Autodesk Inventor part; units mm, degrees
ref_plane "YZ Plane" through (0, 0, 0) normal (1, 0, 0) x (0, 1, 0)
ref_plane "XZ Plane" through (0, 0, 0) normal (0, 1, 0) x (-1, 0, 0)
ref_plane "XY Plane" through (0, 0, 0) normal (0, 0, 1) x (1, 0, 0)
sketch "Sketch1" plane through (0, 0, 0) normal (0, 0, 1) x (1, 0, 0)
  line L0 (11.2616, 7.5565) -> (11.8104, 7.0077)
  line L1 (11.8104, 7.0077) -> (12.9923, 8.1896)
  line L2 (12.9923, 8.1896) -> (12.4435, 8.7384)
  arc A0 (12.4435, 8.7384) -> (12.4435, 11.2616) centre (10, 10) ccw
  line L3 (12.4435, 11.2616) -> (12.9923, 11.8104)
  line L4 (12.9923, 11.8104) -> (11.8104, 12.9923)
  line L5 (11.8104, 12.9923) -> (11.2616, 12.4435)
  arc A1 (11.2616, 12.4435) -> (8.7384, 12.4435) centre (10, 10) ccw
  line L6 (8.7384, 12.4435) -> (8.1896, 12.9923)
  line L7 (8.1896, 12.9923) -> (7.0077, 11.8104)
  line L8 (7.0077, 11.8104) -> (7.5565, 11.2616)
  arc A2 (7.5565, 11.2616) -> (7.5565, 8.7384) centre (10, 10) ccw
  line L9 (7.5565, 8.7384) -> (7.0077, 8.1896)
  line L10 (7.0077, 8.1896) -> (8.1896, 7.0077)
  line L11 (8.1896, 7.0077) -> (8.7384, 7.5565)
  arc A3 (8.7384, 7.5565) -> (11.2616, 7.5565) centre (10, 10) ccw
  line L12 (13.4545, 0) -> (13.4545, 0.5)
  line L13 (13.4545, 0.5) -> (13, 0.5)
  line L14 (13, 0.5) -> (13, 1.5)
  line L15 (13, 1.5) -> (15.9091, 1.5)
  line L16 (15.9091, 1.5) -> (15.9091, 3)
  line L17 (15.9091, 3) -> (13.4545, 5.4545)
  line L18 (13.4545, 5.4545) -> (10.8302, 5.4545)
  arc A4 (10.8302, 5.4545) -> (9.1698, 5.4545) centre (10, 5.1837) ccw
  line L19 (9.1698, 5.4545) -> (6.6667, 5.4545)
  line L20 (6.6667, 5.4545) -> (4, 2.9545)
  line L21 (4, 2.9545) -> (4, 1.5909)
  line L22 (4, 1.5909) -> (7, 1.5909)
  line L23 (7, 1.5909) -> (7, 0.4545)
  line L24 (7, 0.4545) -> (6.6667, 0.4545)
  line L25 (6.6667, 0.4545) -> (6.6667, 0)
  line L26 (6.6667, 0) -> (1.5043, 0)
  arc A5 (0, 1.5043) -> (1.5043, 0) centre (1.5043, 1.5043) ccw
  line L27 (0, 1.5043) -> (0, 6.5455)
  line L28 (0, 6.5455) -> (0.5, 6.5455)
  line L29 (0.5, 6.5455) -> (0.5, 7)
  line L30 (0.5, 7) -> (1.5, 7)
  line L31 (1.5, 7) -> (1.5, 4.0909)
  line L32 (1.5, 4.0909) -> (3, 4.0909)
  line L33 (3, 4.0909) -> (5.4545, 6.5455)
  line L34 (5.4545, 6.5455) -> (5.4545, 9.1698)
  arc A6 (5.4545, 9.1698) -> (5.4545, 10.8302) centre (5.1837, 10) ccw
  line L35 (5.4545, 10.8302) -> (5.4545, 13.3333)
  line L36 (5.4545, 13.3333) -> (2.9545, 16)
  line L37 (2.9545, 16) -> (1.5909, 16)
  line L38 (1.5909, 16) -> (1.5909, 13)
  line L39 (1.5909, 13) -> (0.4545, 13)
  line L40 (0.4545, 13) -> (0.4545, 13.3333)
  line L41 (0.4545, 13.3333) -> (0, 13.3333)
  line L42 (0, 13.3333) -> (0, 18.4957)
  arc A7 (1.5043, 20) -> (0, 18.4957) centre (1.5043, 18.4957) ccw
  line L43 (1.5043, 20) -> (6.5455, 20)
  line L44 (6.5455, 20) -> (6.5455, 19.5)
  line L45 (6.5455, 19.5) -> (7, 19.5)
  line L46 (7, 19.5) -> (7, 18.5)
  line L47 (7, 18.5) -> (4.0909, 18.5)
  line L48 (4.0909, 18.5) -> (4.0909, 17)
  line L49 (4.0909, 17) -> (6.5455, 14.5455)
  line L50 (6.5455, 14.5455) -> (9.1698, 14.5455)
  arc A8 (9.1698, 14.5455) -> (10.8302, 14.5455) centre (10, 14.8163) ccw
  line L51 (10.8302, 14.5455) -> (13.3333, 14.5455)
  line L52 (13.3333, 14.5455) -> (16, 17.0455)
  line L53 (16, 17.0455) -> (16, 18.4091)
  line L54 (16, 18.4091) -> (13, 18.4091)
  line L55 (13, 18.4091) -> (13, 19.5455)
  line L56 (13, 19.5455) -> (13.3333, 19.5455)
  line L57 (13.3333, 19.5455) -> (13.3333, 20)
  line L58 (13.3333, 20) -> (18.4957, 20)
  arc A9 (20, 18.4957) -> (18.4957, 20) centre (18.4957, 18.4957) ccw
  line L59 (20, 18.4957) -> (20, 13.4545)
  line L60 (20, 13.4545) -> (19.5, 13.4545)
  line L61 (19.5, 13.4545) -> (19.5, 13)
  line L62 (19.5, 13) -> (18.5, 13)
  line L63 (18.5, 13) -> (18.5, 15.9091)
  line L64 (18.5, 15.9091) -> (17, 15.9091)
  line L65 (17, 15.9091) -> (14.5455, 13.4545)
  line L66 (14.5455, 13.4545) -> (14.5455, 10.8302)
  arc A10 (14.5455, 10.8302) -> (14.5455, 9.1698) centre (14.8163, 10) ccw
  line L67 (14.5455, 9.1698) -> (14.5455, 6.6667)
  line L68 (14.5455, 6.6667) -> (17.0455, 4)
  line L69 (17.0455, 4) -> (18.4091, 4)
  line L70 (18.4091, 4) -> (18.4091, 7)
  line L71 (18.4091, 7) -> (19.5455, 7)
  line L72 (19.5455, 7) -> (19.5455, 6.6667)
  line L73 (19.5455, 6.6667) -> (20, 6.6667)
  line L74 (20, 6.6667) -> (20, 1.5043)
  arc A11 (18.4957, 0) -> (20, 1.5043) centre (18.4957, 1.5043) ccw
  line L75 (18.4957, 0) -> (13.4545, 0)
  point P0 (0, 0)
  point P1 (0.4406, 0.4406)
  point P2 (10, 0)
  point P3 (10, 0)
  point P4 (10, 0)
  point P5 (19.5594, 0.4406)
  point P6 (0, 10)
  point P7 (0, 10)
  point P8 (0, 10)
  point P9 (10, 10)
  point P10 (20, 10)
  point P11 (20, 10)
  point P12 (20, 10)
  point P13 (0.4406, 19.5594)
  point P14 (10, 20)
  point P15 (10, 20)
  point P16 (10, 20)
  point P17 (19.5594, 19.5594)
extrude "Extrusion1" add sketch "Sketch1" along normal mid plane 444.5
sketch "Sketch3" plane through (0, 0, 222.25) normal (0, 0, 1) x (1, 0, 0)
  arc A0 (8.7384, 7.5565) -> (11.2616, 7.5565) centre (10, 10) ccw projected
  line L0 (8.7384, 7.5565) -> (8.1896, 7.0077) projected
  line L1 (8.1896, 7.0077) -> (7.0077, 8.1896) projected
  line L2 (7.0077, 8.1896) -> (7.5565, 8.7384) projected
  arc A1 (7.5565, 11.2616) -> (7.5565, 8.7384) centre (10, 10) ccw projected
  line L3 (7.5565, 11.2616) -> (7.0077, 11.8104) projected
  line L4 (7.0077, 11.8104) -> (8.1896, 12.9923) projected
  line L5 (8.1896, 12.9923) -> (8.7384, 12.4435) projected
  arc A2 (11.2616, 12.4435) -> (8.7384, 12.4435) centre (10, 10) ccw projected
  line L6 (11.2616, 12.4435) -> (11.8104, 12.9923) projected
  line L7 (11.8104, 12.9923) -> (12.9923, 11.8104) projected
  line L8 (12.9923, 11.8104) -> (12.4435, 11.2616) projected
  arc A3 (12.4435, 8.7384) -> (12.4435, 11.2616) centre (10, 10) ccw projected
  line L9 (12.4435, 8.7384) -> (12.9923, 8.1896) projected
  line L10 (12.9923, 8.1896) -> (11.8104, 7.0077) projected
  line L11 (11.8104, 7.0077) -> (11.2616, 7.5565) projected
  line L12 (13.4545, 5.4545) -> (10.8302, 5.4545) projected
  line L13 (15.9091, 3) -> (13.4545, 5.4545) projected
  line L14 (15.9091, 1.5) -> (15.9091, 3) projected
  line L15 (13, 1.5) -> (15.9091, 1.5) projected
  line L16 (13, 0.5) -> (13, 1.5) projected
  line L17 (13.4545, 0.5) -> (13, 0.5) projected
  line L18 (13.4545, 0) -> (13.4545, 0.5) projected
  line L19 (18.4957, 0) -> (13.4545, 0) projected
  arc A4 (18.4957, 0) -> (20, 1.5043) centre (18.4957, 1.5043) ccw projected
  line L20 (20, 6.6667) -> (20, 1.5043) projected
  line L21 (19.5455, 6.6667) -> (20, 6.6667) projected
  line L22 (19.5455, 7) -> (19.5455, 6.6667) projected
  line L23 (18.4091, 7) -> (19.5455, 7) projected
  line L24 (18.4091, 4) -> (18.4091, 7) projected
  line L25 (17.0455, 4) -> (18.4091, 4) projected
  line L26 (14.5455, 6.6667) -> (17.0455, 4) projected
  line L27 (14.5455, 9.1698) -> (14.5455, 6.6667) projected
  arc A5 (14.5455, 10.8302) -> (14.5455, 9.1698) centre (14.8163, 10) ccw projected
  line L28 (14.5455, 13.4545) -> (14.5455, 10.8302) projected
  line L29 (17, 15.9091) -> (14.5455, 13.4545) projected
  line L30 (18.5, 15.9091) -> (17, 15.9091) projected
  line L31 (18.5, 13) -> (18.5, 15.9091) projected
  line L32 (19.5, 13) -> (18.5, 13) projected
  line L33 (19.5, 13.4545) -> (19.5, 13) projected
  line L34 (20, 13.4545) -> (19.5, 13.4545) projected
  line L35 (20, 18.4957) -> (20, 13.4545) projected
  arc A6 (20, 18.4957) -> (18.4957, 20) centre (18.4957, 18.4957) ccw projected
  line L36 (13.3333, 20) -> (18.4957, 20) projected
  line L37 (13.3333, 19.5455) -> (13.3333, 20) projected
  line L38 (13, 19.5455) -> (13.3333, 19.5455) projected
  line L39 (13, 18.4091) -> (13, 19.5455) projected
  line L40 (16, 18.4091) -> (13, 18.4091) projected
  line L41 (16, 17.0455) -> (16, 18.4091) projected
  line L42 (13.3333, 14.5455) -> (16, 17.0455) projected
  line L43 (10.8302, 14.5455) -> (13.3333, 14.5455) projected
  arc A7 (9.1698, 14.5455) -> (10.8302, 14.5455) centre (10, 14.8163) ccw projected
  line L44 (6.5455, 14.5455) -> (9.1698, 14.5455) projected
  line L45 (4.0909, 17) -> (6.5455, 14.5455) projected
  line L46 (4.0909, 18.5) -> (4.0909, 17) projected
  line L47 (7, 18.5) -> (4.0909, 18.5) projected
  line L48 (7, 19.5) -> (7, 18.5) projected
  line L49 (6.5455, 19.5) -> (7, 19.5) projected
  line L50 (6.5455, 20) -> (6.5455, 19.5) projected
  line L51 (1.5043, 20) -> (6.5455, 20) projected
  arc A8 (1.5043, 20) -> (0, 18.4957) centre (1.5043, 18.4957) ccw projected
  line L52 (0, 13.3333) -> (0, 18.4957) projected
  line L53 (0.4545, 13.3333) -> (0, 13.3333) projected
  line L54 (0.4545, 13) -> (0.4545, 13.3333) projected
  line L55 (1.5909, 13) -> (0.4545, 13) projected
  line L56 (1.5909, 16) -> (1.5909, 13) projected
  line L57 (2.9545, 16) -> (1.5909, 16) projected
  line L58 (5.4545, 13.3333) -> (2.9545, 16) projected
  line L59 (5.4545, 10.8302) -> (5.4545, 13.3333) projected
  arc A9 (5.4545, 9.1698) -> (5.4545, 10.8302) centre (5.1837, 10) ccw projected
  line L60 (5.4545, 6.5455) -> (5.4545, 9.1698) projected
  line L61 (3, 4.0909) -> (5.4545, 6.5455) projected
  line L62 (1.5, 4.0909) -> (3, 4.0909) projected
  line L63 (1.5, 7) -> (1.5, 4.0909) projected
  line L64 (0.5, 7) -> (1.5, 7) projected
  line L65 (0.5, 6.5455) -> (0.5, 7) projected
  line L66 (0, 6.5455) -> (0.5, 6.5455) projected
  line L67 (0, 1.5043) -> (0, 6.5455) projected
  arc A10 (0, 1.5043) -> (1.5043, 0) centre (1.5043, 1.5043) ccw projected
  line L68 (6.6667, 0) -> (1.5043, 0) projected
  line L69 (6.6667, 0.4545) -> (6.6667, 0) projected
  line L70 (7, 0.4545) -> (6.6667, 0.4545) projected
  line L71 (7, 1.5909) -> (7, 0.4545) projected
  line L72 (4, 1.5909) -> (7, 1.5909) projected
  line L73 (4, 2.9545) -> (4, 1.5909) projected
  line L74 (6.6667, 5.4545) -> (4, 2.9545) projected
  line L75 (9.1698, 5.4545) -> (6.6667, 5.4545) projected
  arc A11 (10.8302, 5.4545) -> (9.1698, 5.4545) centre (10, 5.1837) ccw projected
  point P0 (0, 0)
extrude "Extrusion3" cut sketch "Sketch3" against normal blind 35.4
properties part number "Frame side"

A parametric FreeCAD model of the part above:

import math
import FreeCAD as App
import Part
import Sketcher
Q = App.Units.Quantity

doc = App.newDocument("Part")
body = doc.addObject("PartDesign::Body", "Body")

# Sketch on XY plane
sketch1 = body.newObject("Sketcher::SketchObject", "Sketch")
sketch1.AttachmentSupport = (doc.getObject("XY_Plane"), [""])
sketch1.MapMode = "FlatFace"
sketch1.addGeometry([
    Part.LineSegment(App.Vector(13.45, 0.5, 0), App.Vector(13.45, 0, 0)),  # 0
    Part.LineSegment(App.Vector(13.45, 0, 0), App.Vector(18.5, 0, 0)),  # 1
    Part.ArcOfCircle(Part.Circle(App.Vector(18.5, 1.5, 0), App.Vector(0, 0, 1), 1.5), math.radians(-90), math.radians(0)),  # 2
    Part.LineSegment(App.Vector(20, 1.5, 0), App.Vector(20, 6.67, 0)),  # 3
    Part.LineSegment(App.Vector(20, 6.67, 0), App.Vector(19.55, 6.67, 0)),  # 4
    Part.LineSegment(App.Vector(19.55, 6.67, 0), App.Vector(19.55, 7, 0)),  # 5
    Part.LineSegment(App.Vector(19.55, 7, 0), App.Vector(18.41, 7, 0)),  # 6
    Part.LineSegment(App.Vector(18.41, 7, 0), App.Vector(18.41, 4, 0)),  # 7
    Part.LineSegment(App.Vector(18.41, 4, 0), App.Vector(17.05, 4, 0)),  # 8
    Part.LineSegment(App.Vector(17.05, 4, 0), App.Vector(14.55, 6.67, 0)),  # 9
    Part.LineSegment(App.Vector(14.55, 6.67, 0), App.Vector(14.55, 9.17, 0)),  # 10
    Part.ArcOfCircle(Part.Circle(App.Vector(14.82, 10, 0), App.Vector(0, 0, 1), 0.87), math.radians(108), math.radians(252)),  # 11
    Part.LineSegment(App.Vector(14.55, 10.83, 0), App.Vector(14.55, 13.45, 0)),  # 12
    Part.LineSegment(App.Vector(14.55, 13.45, 0), App.Vector(17, 15.91, 0)),  # 13
    Part.LineSegment(App.Vector(17, 15.91, 0), App.Vector(18.5, 15.91, 0)),  # 14
    Part.LineSegment(App.Vector(18.5, 15.91, 0), App.Vector(18.5, 13, 0)),  # 15
    Part.LineSegment(App.Vector(18.5, 13, 0), App.Vector(19.5, 13, 0)),  # 16
    Part.LineSegment(App.Vector(19.5, 13, 0), App.Vector(19.5, 13.45, 0)),  # 17
    Part.LineSegment(App.Vector(19.5, 13.45, 0), App.Vector(20, 13.45, 0)),  # 18
    Part.LineSegment(App.Vector(20, 13.45, 0), App.Vector(20, 18.5, 0)),  # 19
    Part.ArcOfCircle(Part.Circle(App.Vector(18.5, 18.5, 0), App.Vector(0, 0, 1), 1.5), math.radians(0), math.radians(90)),  # 20
    Part.LineSegment(App.Vector(18.5, 20, 0), App.Vector(13.33, 20, 0)),  # 21
    Part.LineSegment(App.Vector(13.33, 20, 0), App.Vector(13.33, 19.55, 0)),  # 22
    Part.LineSegment(App.Vector(13.33, 19.55, 0), App.Vector(13, 19.55, 0)),  # 23
    Part.LineSegment(App.Vector(13, 19.55, 0), App.Vector(13, 18.41, 0)),  # 24
    Part.LineSegment(App.Vector(13, 18.41, 0), App.Vector(16, 18.41, 0)),  # 25
    Part.LineSegment(App.Vector(16, 18.41, 0), App.Vector(16, 17.05, 0)),  # 26
    Part.LineSegment(App.Vector(16, 17.05, 0), App.Vector(13.33, 14.55, 0)),  # 27
    Part.LineSegment(App.Vector(13.33, 14.55, 0), App.Vector(10.83, 14.55, 0)),  # 28
    Part.ArcOfCircle(Part.Circle(App.Vector(10, 14.82, 0), App.Vector(0, 0, 1), 0.87), math.radians(-162), math.radians(-18)),  # 29
    Part.LineSegment(App.Vector(9.17, 14.55, 0), App.Vector(6.55, 14.55, 0)),  # 30
    Part.LineSegment(App.Vector(6.55, 14.55, 0), App.Vector(4.09, 17, 0)),  # 31
    Part.LineSegment(App.Vector(4.09, 17, 0), App.Vector(4.09, 18.5, 0)),  # 32
    Part.LineSegment(App.Vector(4.09, 18.5, 0), App.Vector(7, 18.5, 0)),  # 33
    Part.LineSegment(App.Vector(7, 18.5, 0), App.Vector(7, 19.5, 0)),  # 34
    Part.LineSegment(App.Vector(7, 19.5, 0), App.Vector(6.55, 19.5, 0)),  # 35
    Part.LineSegment(App.Vector(6.55, 19.5, 0), App.Vector(6.55, 20, 0)),  # 36
    Part.LineSegment(App.Vector(6.55, 20, 0), App.Vector(1.5, 20, 0)),  # 37
    Part.ArcOfCircle(Part.Circle(App.Vector(1.5, 18.5, 0), App.Vector(0, 0, 1), 1.5), math.radians(90), math.radians(180)),  # 38
    Part.LineSegment(App.Vector(0, 18.5, 0), App.Vector(0, 13.33, 0)),  # 39
    Part.LineSegment(App.Vector(0, 13.33, 0), App.Vector(0.45, 13.33, 0)),  # 40
    Part.LineSegment(App.Vector(0.45, 13.33, 0), App.Vector(0.45, 13, 0)),  # 41
    Part.LineSegment(App.Vector(0.45, 13, 0), App.Vector(1.59, 13, 0)),  # 42
    Part.LineSegment(App.Vector(1.59, 13, 0), App.Vector(1.59, 16, 0)),  # 43
    Part.LineSegment(App.Vector(1.59, 16, 0), App.Vector(2.95, 16, 0)),  # 44
    Part.LineSegment(App.Vector(2.95, 16, 0), App.Vector(5.45, 13.33, 0)),  # 45
    Part.LineSegment(App.Vector(5.45, 13.33, 0), App.Vector(5.45, 10.83, 0)),  # 46
    Part.ArcOfCircle(Part.Circle(App.Vector(5.18, 10, 0), App.Vector(0, 0, 1), 0.87), math.radians(-72), math.radians(72)),  # 47
    Part.LineSegment(App.Vector(5.45, 9.17, 0), App.Vector(5.45, 6.55, 0)),  # 48
    Part.LineSegment(App.Vector(5.45, 6.55, 0), App.Vector(3, 4.09, 0)),  # 49
    Part.LineSegment(App.Vector(3, 4.09, 0), App.Vector(1.5, 4.09, 0)),  # 50
    Part.LineSegment(App.Vector(1.5, 4.09, 0), App.Vector(1.5, 7, 0)),  # 51
    Part.LineSegment(App.Vector(1.5, 7, 0), App.Vector(0.5, 7, 0)),  # 52
    Part.LineSegment(App.Vector(0.5, 7, 0), App.Vector(0.5, 6.55, 0)),  # 53
    Part.LineSegment(App.Vector(0.5, 6.55, 0), App.Vector(0, 6.55, 0)),  # 54
    Part.LineSegment(App.Vector(0, 6.55, 0), App.Vector(0, 1.5, 0)),  # 55
    Part.ArcOfCircle(Part.Circle(App.Vector(1.5, 1.5, 0), App.Vector(0, 0, 1), 1.5), math.radians(180), math.radians(270)),  # 56
    Part.LineSegment(App.Vector(1.5, 0, 0), App.Vector(6.67, 0, 0)),  # 57
    Part.LineSegment(App.Vector(6.67, 0, 0), App.Vector(6.67, 0.45, 0)),  # 58
    Part.LineSegment(App.Vector(6.67, 0.45, 0), App.Vector(7, 0.45, 0)),  # 59
    Part.LineSegment(App.Vector(7, 0.45, 0), App.Vector(7, 1.59, 0)),  # 60
    Part.LineSegment(App.Vector(7, 1.59, 0), App.Vector(4, 1.59, 0)),  # 61
    Part.LineSegment(App.Vector(4, 1.59, 0), App.Vector(4, 2.95, 0)),  # 62
    Part.LineSegment(App.Vector(4, 2.95, 0), App.Vector(6.67, 5.45, 0)),  # 63
    Part.LineSegment(App.Vector(6.67, 5.45, 0), App.Vector(9.17, 5.45, 0)),  # 64
    Part.ArcOfCircle(Part.Circle(App.Vector(10, 5.18, 0), App.Vector(0, 0, 1), 0.87), math.radians(18), math.radians(162)),  # 65
    Part.LineSegment(App.Vector(10.83, 5.45, 0), App.Vector(13.45, 5.45, 0)),  # 66
    Part.LineSegment(App.Vector(13.45, 5.45, 0), App.Vector(15.91, 3, 0)),  # 67
    Part.LineSegment(App.Vector(15.91, 3, 0), App.Vector(15.91, 1.5, 0)),  # 68
    Part.LineSegment(App.Vector(15.91, 1.5, 0), App.Vector(13, 1.5, 0)),  # 69
    Part.LineSegment(App.Vector(13, 1.5, 0), App.Vector(13, 0.5, 0)),  # 70
    Part.LineSegment(App.Vector(13, 0.5, 0), App.Vector(13.45, 0.5, 0)),  # 71
    Part.LineSegment(App.Vector(11.81, 7.01, 0), App.Vector(11.26, 7.56, 0)),  # 72
    Part.ArcOfCircle(Part.Circle(App.Vector(10, 10, 0), App.Vector(0, 0, 1), 2.75), math.radians(-117), math.radians(-63)),  # 73
    Part.LineSegment(App.Vector(8.74, 7.56, 0), App.Vector(8.19, 7.01, 0)),  # 74
    Part.LineSegment(App.Vector(8.19, 7.01, 0), App.Vector(7.01, 8.19, 0)),  # 75
    Part.LineSegment(App.Vector(7.01, 8.19, 0), App.Vector(7.56, 8.74, 0)),  # 76
    Part.ArcOfCircle(Part.Circle(App.Vector(10, 10, 0), App.Vector(0, 0, 1), 2.75), math.radians(153), math.radians(207)),  # 77
    Part.LineSegment(App.Vector(7.56, 11.26, 0), App.Vector(7.01, 11.81, 0)),  # 78
    Part.LineSegment(App.Vector(7.01, 11.81, 0), App.Vector(8.19, 12.99, 0)),  # 79
    Part.LineSegment(App.Vector(8.19, 12.99, 0), App.Vector(8.74, 12.44, 0)),  # 80
    Part.ArcOfCircle(Part.Circle(App.Vector(10, 10, 0), App.Vector(0, 0, 1), 2.75), math.radians(63), math.radians(117)),  # 81
    Part.LineSegment(App.Vector(11.26, 12.44, 0), App.Vector(11.81, 12.99, 0)),  # 82
    Part.LineSegment(App.Vector(11.81, 12.99, 0), App.Vector(12.99, 11.81, 0)),  # 83
    Part.LineSegment(App.Vector(12.99, 11.81, 0), App.Vector(12.44, 11.26, 0)),  # 84
    Part.ArcOfCircle(Part.Circle(App.Vector(10, 10, 0), App.Vector(0, 0, 1), 2.75), math.radians(-27), math.radians(27)),  # 85
    Part.LineSegment(App.Vector(12.44, 8.74, 0), App.Vector(12.99, 8.19, 0)),  # 86
    Part.LineSegment(App.Vector(12.99, 8.19, 0), App.Vector(11.81, 7.01, 0)),  # 87
], False)
sketch1.addConstraint([
    Sketcher.Constraint("Coincident", 0, 2, 1, 1),
    Sketcher.Constraint("Tangent", 1, 2, 2, 1),
    Sketcher.Constraint("Tangent", 2, 2, 3, 1),
    Sketcher.Constraint("Coincident", 3, 2, 4, 1),
    Sketcher.Constraint("Coincident", 4, 2, 5, 1),
    Sketcher.Constraint("Coincident", 5, 2, 6, 1),
    Sketcher.Constraint("Coincident", 6, 2, 7, 1),
    Sketcher.Constraint("Coincident", 7, 2, 8, 1),
    Sketcher.Constraint("Coincident", 8, 2, 9, 1),
    Sketcher.Constraint("Coincident", 9, 2, 10, 1),
    Sketcher.Constraint("Coincident", 10, 2, 11, 2),
    Sketcher.Constraint("Coincident", 11, 1, 12, 1),
    Sketcher.Constraint("Coincident", 12, 2, 13, 1),
    Sketcher.Constraint("Coincident", 13, 2, 14, 1),
    Sketcher.Constraint("Coincident", 14, 2, 15, 1),
    Sketcher.Constraint("Coincident", 15, 2, 16, 1),
    Sketcher.Constraint("Coincident", 16, 2, 17, 1),
    Sketcher.Constraint("Coincident", 17, 2, 18, 1),
    Sketcher.Constraint("Coincident", 18, 2, 19, 1),
    Sketcher.Constraint("Tangent", 19, 2, 20, 1),
    Sketcher.Constraint("Tangent", 20, 2, 21, 1),
    Sketcher.Constraint("Coincident", 21, 2, 22, 1),
    Sketcher.Constraint("Coincident", 22, 2, 23, 1),
    Sketcher.Constraint("Coincident", 23, 2, 24, 1),
    Sketcher.Constraint("Coincident", 24, 2, 25, 1),
    Sketcher.Constraint("Coincident", 25, 2, 26, 1),
    Sketcher.Constraint("Coincident", 26, 2, 27, 1),
    Sketcher.Constraint("Coincident", 27, 2, 28, 1),
    Sketcher.Constraint("Coincident", 28, 2, 29, 2),
    Sketcher.Constraint("Coincident", 29, 1, 30, 1),
    Sketcher.Constraint("Coincident", 30, 2, 31, 1),
    Sketcher.Constraint("Coincident", 31, 2, 32, 1),
    Sketcher.Constraint("Coincident", 32, 2, 33, 1),
    Sketcher.Constraint("Coincident", 33, 2, 34, 1),
    Sketcher.Constraint("Coincident", 34, 2, 35, 1),
    Sketcher.Constraint("Coincident", 35, 2, 36, 1),
    Sketcher.Constraint("Coincident", 36, 2, 37, 1),
    Sketcher.Constraint("Tangent", 37, 2, 38, 1),
    Sketcher.Constraint("Tangent", 38, 2, 39, 1),
    Sketcher.Constraint("Coincident", 39, 2, 40, 1),
    Sketcher.Constraint("Coincident", 40, 2, 41, 1),
    Sketcher.Constraint("Coincident", 41, 2, 42, 1),
    Sketcher.Constraint("Coincident", 42, 2, 43, 1),
    Sketcher.Constraint("Coincident", 43, 2, 44, 1),
    Sketcher.Constraint("Coincident", 44, 2, 45, 1),
    Sketcher.Constraint("Coincident", 45, 2, 46, 1),
    Sketcher.Constraint("Coincident", 46, 2, 47, 2),
    Sketcher.Constraint("Coincident", 47, 1, 48, 1),
    Sketcher.Constraint("Coincident", 48, 2, 49, 1),
    Sketcher.Constraint("Coincident", 49, 2, 50, 1),
    Sketcher.Constraint("Coincident", 50, 2, 51, 1),
    Sketcher.Constraint("Coincident", 51, 2, 52, 1),
    Sketcher.Constraint("Coincident", 52, 2, 53, 1),
    Sketcher.Constraint("Coincident", 53, 2, 54, 1),
    Sketcher.Constraint("Coincident", 54, 2, 55, 1),
    Sketcher.Constraint("Tangent", 55, 2, 56, 1),
    Sketcher.Constraint("Tangent", 56, 2, 57, 1),
    Sketcher.Constraint("Coincident", 57, 2, 58, 1),
    Sketcher.Constraint("Coincident", 58, 2, 59, 1),
    Sketcher.Constraint("Coincident", 59, 2, 60, 1),
    Sketcher.Constraint("Coincident", 60, 2, 61, 1),
    Sketcher.Constraint("Coincident", 61, 2, 62, 1),
    Sketcher.Constraint("Coincident", 62, 2, 63, 1),
    Sketcher.Constraint("Coincident", 63, 2, 64, 1),
    Sketcher.Constraint("Coincident", 64, 2, 65, 2),
    Sketcher.Constraint("Coincident", 65, 1, 66, 1),
    Sketcher.Constraint("Coincident", 66, 2, 67, 1),
    Sketcher.Constraint("Coincident", 67, 2, 68, 1),
    Sketcher.Constraint("Coincident", 68, 2, 69, 1),
    Sketcher.Constraint("Coincident", 69, 2, 70, 1),
    Sketcher.Constraint("Coincident", 70, 2, 71, 1),
    Sketcher.Constraint("Coincident", 71, 2, 0, 1),
    Sketcher.Constraint("Coincident", 72, 2, 73, 2),
    Sketcher.Constraint("Coincident", 73, 1, 74, 1),
    Sketcher.Constraint("Coincident", 74, 2, 75, 1),
    Sketcher.Constraint("Coincident", 75, 2, 76, 1),
    Sketcher.Constraint("Coincident", 76, 2, 77, 2),
    Sketcher.Constraint("Coincident", 77, 1, 78, 1),
    Sketcher.Constraint("Coincident", 78, 2, 79, 1),
    Sketcher.Constraint("Coincident", 79, 2, 80, 1),
    Sketcher.Constraint("Coincident", 80, 2, 81, 2),
    Sketcher.Constraint("Coincident", 81, 1, 82, 1),
    Sketcher.Constraint("Coincident", 82, 2, 83, 1),
    Sketcher.Constraint("Coincident", 83, 2, 84, 1),
    Sketcher.Constraint("Coincident", 84, 2, 85, 2),
    Sketcher.Constraint("Coincident", 85, 1, 86, 1),
    Sketcher.Constraint("Coincident", 86, 2, 87, 1),
    Sketcher.Constraint("Coincident", 87, 2, 72, 1),
    Sketcher.Constraint("Vertical", 0),
    Sketcher.Constraint("Horizontal", 1),
    Sketcher.Constraint("Vertical", 3),
    Sketcher.Constraint("Horizontal", 4),
    Sketcher.Constraint("Vertical", 5),
    Sketcher.Constraint("Horizontal", 6),
    Sketcher.Constraint("Vertical", 7),
    Sketcher.Constraint("Horizontal", 8),
    Sketcher.Constraint("Vertical", 10),
    Sketcher.Constraint("Vertical", 12),
    Sketcher.Constraint("Horizontal", 14),
    Sketcher.Constraint("Vertical", 15),
    Sketcher.Constraint("Horizontal", 16),
    Sketcher.Constraint("Vertical", 17),
    Sketcher.Constraint("Horizontal", 18),
    Sketcher.Constraint("Vertical", 19),
    Sketcher.Constraint("Horizontal", 21),
    Sketcher.Constraint("Vertical", 22),
    Sketcher.Constraint("Horizontal", 23),
    Sketcher.Constraint("Vertical", 24),
    Sketcher.Constraint("Horizontal", 25),
    Sketcher.Constraint("Vertical", 26),
    Sketcher.Constraint("Horizontal", 28),
    Sketcher.Constraint("Horizontal", 30),
    Sketcher.Constraint("Vertical", 32),
    Sketcher.Constraint("Horizontal", 33),
    Sketcher.Constraint("Vertical", 34),
    Sketcher.Constraint("Horizontal", 35),
    Sketcher.Constraint("Vertical", 36),
    Sketcher.Constraint("Horizontal", 37),
    Sketcher.Constraint("Vertical", 39),
    Sketcher.Constraint("Horizontal", 40),
    Sketcher.Constraint("Vertical", 41),
    Sketcher.Constraint("Horizontal", 42),
    Sketcher.Constraint("Vertical", 43),
    Sketcher.Constraint("Horizontal", 44),
    Sketcher.Constraint("Vertical", 46),
    Sketcher.Constraint("Vertical", 48),
    Sketcher.Constraint("Horizontal", 50),
    Sketcher.Constraint("Vertical", 51),
    Sketcher.Constraint("Horizontal", 52),
    Sketcher.Constraint("Vertical", 53),
    Sketcher.Constraint("Horizontal", 54),
    Sketcher.Constraint("Vertical", 55),
    Sketcher.Constraint("Horizontal", 57),
    Sketcher.Constraint("Vertical", 58),
    Sketcher.Constraint("Horizontal", 59),
    Sketcher.Constraint("Vertical", 60),
    Sketcher.Constraint("Horizontal", 61),
    Sketcher.Constraint("Vertical", 62),
    Sketcher.Constraint("Horizontal", 64),
    Sketcher.Constraint("Horizontal", 66),
    Sketcher.Constraint("Vertical", 68),
    Sketcher.Constraint("Horizontal", 69),
    Sketcher.Constraint("Vertical", 70),
    Sketcher.Constraint("Horizontal", 71),
    Sketcher.Constraint("Coincident", 77, 3, 73, 3),
    Sketcher.Constraint("Coincident", 81, 3, 73, 3),
    Sketcher.Constraint("Coincident", 85, 3, 73, 3),
    Sketcher.Constraint("Equal", 2, 20),
    Sketcher.Constraint("Equal", 11, 29),
    Sketcher.Constraint("Equal", 20, 38),
    Sketcher.Constraint("Equal", 29, 47),
    Sketcher.Constraint("Equal", 38, 56),
    Sketcher.Constraint("Equal", 47, 65),
    Sketcher.Constraint("Equal", 73, 77),
    Sketcher.Constraint("Equal", 77, 81),
    Sketcher.Constraint("Equal", 81, 85),
    Sketcher.Constraint("PointOnObject", 0, 2, -1),
    Sketcher.Constraint("PointOnObject", 38, 2, -2),
    Sketcher.Constraint("PointOnObject", 54, 2, -2),
    Sketcher.Constraint("PointOnObject", 56, 2, -1),
    Sketcher.Constraint("Perpendicular", 9, 27),
    Sketcher.Constraint("Perpendicular", 13, 31),
    Sketcher.Constraint("Perpendicular", 27, 45),
    Sketcher.Constraint("Perpendicular", 31, 49),
    Sketcher.Constraint("Perpendicular", 45, 63),
    Sketcher.Constraint("Perpendicular", 49, 67),
    Sketcher.Constraint("Parallel", 67, 72),
    Sketcher.Constraint("Perpendicular", 72, 74),
    Sketcher.Constraint("Perpendicular", 74, 75),
    Sketcher.Constraint("Perpendicular", 75, 76),
    Sketcher.Constraint("Perpendicular", 76, 78),
    Sketcher.Constraint("Perpendicular", 78, 79),
    Sketcher.Constraint("Perpendicular", 79, 80),
    Sketcher.Constraint("Perpendicular", 80, 82),
    Sketcher.Constraint("Perpendicular", 82, 83),
    Sketcher.Constraint("Perpendicular", 83, 84),
    Sketcher.Constraint("Perpendicular", 84, 86),
    Sketcher.Constraint("Perpendicular", 86, 87),
    Sketcher.Constraint("Horizontal", 20, 3, 38, 3),
    Sketcher.Constraint("Horizontal", 11, 3, 47, 3),
    Sketcher.Constraint("Horizontal", 47, 3, 73, 3),
    Sketcher.Constraint("Horizontal", 4, 2, 9, 2),
    Sketcher.Constraint("Horizontal", 12, 2, 17, 2),
    Sketcher.Constraint("Horizontal", 28, 2, 29, 1),
    Sketcher.Constraint("Horizontal", 16, 2, 41, 2),
    Sketcher.Constraint("Horizontal", 40, 2, 45, 2),
    Sketcher.Constraint("Horizontal", 11, 1, 46, 2),
    Sketcher.Constraint("Horizontal", 10, 2, 47, 1),
    Sketcher.Constraint("Horizontal", 6, 2, 51, 2),
    Sketcher.Constraint("Horizontal", 48, 2, 53, 2),
    Sketcher.Constraint("Horizontal", 64, 2, 65, 1),
    Sketcher.Constraint("Horizontal", 72, 2, 73, 1),
    Sketcher.Constraint("Horizontal", 80, 2, 81, 1),
    Sketcher.Constraint("Horizontal", 79, 2, 82, 2),
    Sketcher.Constraint("Horizontal", 78, 2, 83, 2),
    Sketcher.Constraint("Horizontal", 77, 1, 84, 2),
    Sketcher.Constraint("Horizontal", 76, 2, 85, 1),
    Sketcher.Constraint("Horizontal", 75, 2, 86, 2),
    Sketcher.Constraint("Vertical", 2, 3, 20, 3),
    Sketcher.Constraint("Vertical", 29, 3, 65, 3),
    Sketcher.Constraint("Vertical", 65, 3, 73, 3),
    Sketcher.Constraint("Vertical", 10, 2, 11, 1),
    Sketcher.Constraint("Vertical", 22, 2, 27, 2),
    Sketcher.Constraint("Vertical", 30, 2, 35, 2),
    Sketcher.Constraint("Vertical", 34, 2, 59, 2),
    Sketcher.Constraint("Vertical", 58, 2, 63, 2),
    Sketcher.Constraint("Vertical", 29, 1, 64, 2),
    Sketcher.Constraint("Vertical", 0, 2, 66, 2),
    Sketcher.Constraint("Vertical", 24, 2, 69, 2),
    Sketcher.Constraint("Vertical", 76, 2, 77, 1),
    Sketcher.Constraint("Vertical", 75, 2, 78, 2),
    Sketcher.Constraint("Vertical", 74, 2, 79, 2),
    Sketcher.Constraint("Equal", 4, 35),
    Sketcher.Constraint("Equal", 1, 37),
    Sketcher.Constraint("Equal", 35, 40),
    Sketcher.Constraint("Equal", 6, 42),
    Sketcher.Constraint("Equal", 8, 44),
    Sketcher.Constraint("Equal", 14, 50),
    Sketcher.Constraint("Equal", 16, 52),
    Sketcher.Constraint("Equal", 18, 54),
    Sketcher.Constraint("Equal", 21, 57),
    Sketcher.Constraint("Equal", 23, 59),
    Sketcher.Constraint("Equal", 25, 61),
    Sketcher.Constraint("Equal", 28, 64),
    Sketcher.Constraint("Equal", 33, 69),
    Sketcher.Constraint("Equal", 54, 0),
    Sketcher.Constraint("Equal", 57, 3),
    Sketcher.Constraint("Equal", 59, 5),
    Sketcher.Constraint("Equal", 61, 7),
    Sketcher.Constraint("Equal", 64, 10),
    Sketcher.Constraint("Equal", 66, 12),
    Sketcher.Constraint("Equal", 69, 15),
    Sketcher.Constraint("Equal", 71, 17),
    Sketcher.Constraint("Equal", 37, 19),
    Sketcher.Constraint("Equal", 17, 22),
    Sketcher.Constraint("Equal", 42, 24),
    Sketcher.Constraint("Equal", 44, 26),
    Sketcher.Constraint("Equal", 50, 32),
    Sketcher.Constraint("Equal", 52, 34),
    Sketcher.Constraint("Equal", 3, 39),
    Sketcher.Constraint("Equal", 7, 43),
    Sketcher.Constraint("Equal", 12, 48),
    Sketcher.Constraint("Equal", 53, 58),
    Sketcher.Constraint("Equal", 24, 60),
    Sketcher.Constraint("Equal", 26, 62),
    Sketcher.Constraint("Equal", 32, 68),
    Sketcher.Constraint("Equal", 74, 76),
    Sketcher.Constraint("DistanceX", 16, 1, 16, 2, Q("1 mm")),
    Sketcher.Constraint("DistanceX", 25, 1, 25, 2, Q("3 mm")),
    Sketcher.Constraint("Radius", 73, Q("2.75 mm")),
    Sketcher.Constraint("DistanceX", 14, 1, 14, 2, Q("1.5 mm")),
    Sketcher.Constraint("DistanceX", 18, 1, 18, 2, Q("0.5 mm")),
    Sketcher.Constraint("DistanceY", -1, 1, 11, 3, Q("10 mm")),
    Sketcher.Constraint("DistanceX", -1, 1, 29, 3, Q("10 mm")),
    Sketcher.Constraint("DistanceY", -1, 1, 5, 2, Q("7 mm")),
    Sketcher.Constraint("Radius", 2, Q("1.5043 mm")),
    Sketcher.Constraint("Radius", 11, Q("0.8732 mm")),
    Sketcher.Constraint("DistanceX", 28, 2, 28, 1, Q("2.503 mm")),
    Sketcher.Constraint("DistanceX", 33, 1, 33, 2, Q("2.909 mm")),
    Sketcher.Constraint("DistanceX", 1, 1, 1, 2, Q("5.0412 mm")),
    Sketcher.Constraint("DistanceX", 6, 2, 6, 1, Q("1.1364 mm")),
    Sketcher.Constraint("DistanceX", 8, 2, 8, 1, Q("1.3636 mm")),
    Sketcher.Constraint("DistanceX", 21, 2, 21, 1, Q("5.1624 mm")),
    Sketcher.Constraint("Distance", 72, Q("0.7761 mm")),
    Sketcher.Constraint("Distance", 75, Q("1.6715 mm")),
])
pad1 = body.newObject("PartDesign::Pad", "Pad")
pad1.Profile = sketch1
pad1.Length = 444.5
pad1.Midplane = True

# Sketch on XY plane
sketch2 = body.newObject("Sketcher::SketchObject", "Sketch001")
sketch2.AttachmentSupport = (doc.getObject("XY_Plane"), [""])
sketch2.MapMode = "FlatFace"
sketch2.AttachmentOffset = App.Placement(App.Vector(0, 0, 222.25), App.Rotation())
sketch2.addGeometry([
    Part.LineSegment(App.Vector(10.83, 5.45, 0), App.Vector(13.45, 5.45, 0)),  # 0
    Part.LineSegment(App.Vector(13.45, 5.45, 0), App.Vector(15.91, 3, 0)),  # 1
    Part.LineSegment(App.Vector(15.91, 3, 0), App.Vector(15.91, 1.5, 0)),  # 2
    Part.LineSegment(App.Vector(15.91, 1.5, 0), App.Vector(13, 1.5, 0)),  # 3
    Part.LineSegment(App.Vector(13, 1.5, 0), App.Vector(13, 0.5, 0)),  # 4
    Part.LineSegment(App.Vector(13, 0.5, 0), App.Vector(13.45, 0.5, 0)),  # 5
    Part.LineSegment(App.Vector(13.45, 0.5, 0), App.Vector(13.45, 0, 0)),  # 6
    Part.LineSegment(App.Vector(13.45, 0, 0), App.Vector(18.5, 0, 0)),  # 7
    Part.ArcOfCircle(Part.Circle(App.Vector(18.5, 1.5, 0), App.Vector(0, 0, 1), 1.5), math.radians(-90), math.radians(0)),  # 8
    Part.LineSegment(App.Vector(20, 1.5, 0), App.Vector(20, 6.67, 0)),  # 9
    Part.LineSegment(App.Vector(20, 6.67, 0), App.Vector(19.55, 6.67, 0)),  # 10
    Part.LineSegment(App.Vector(19.55, 6.67, 0), App.Vector(19.55, 7, 0)),  # 11
    Part.LineSegment(App.Vector(19.55, 7, 0), App.Vector(18.41, 7, 0)),  # 12
    Part.LineSegment(App.Vector(18.41, 7, 0), App.Vector(18.41, 4, 0)),  # 13
    Part.LineSegment(App.Vector(18.41, 4, 0), App.Vector(17.05, 4, 0)),  # 14
    Part.LineSegment(App.Vector(17.05, 4, 0), App.Vector(14.55, 6.67, 0)),  # 15
    Part.LineSegment(App.Vector(14.55, 6.67, 0), App.Vector(14.55, 9.17, 0)),  # 16
    Part.ArcOfCircle(Part.Circle(App.Vector(14.82, 10, 0), App.Vector(0, 0, 1), 0.87), math.radians(108), math.radians(252)),  # 17
    Part.LineSegment(App.Vector(14.55, 10.83, 0), App.Vector(14.55, 13.45, 0)),  # 18
    Part.LineSegment(App.Vector(14.55, 13.45, 0), App.Vector(17, 15.91, 0)),  # 19
    Part.LineSegment(App.Vector(17, 15.91, 0), App.Vector(18.5, 15.91, 0)),  # 20
    Part.LineSegment(App.Vector(18.5, 15.91, 0), App.Vector(18.5, 13, 0)),  # 21
    Part.LineSegment(App.Vector(18.5, 13, 0), App.Vector(19.5, 13, 0)),  # 22
    Part.LineSegment(App.Vector(19.5, 13, 0), App.Vector(19.5, 13.45, 0)),  # 23
    Part.LineSegment(App.Vector(19.5, 13.45, 0), App.Vector(20, 13.45, 0)),  # 24
    Part.LineSegment(App.Vector(20, 13.45, 0), App.Vector(20, 18.5, 0)),  # 25
    Part.ArcOfCircle(Part.Circle(App.Vector(18.5, 18.5, 0), App.Vector(0, 0, 1), 1.5), math.radians(0), math.radians(90)),  # 26
    Part.LineSegment(App.Vector(18.5, 20, 0), App.Vector(13.33, 20, 0)),  # 27
    Part.LineSegment(App.Vector(13.33, 20, 0), App.Vector(13.33, 19.55, 0)),  # 28
    Part.LineSegment(App.Vector(13.33, 19.55, 0), App.Vector(13, 19.55, 0)),  # 29
    Part.LineSegment(App.Vector(13, 19.55, 0), App.Vector(13, 18.41, 0)),  # 30
    Part.LineSegment(App.Vector(13, 18.41, 0), App.Vector(16, 18.41, 0)),  # 31
    Part.LineSegment(App.Vector(16, 18.41, 0), App.Vector(16, 17.05, 0)),  # 32
    Part.LineSegment(App.Vector(16, 17.05, 0), App.Vector(13.33, 14.55, 0)),  # 33
    Part.LineSegment(App.Vector(13.33, 14.55, 0), App.Vector(10.83, 14.55, 0)),  # 34
    Part.ArcOfCircle(Part.Circle(App.Vector(10, 14.82, 0), App.Vector(0, 0, 1), 0.87), math.radians(-162), math.radians(-18)),  # 35
    Part.LineSegment(App.Vector(9.17, 14.55, 0), App.Vector(6.55, 14.55, 0)),  # 36
    Part.LineSegment(App.Vector(6.55, 14.55, 0), App.Vector(4.09, 17, 0)),  # 37
    Part.LineSegment(App.Vector(4.09, 17, 0), App.Vector(4.09, 18.5, 0)),  # 38
    Part.LineSegment(App.Vector(4.09, 18.5, 0), App.Vector(7, 18.5, 0)),  # 39
    Part.LineSegment(App.Vector(7, 18.5, 0), App.Vector(7, 19.5, 0)),  # 40
    Part.LineSegment(App.Vector(7, 19.5, 0), App.Vector(6.55, 19.5, 0)),  # 41
    Part.LineSegment(App.Vector(6.55, 19.5, 0), App.Vector(6.55, 20, 0)),  # 42
    Part.LineSegment(App.Vector(6.55, 20, 0), App.Vector(1.5, 20, 0)),  # 43
    Part.ArcOfCircle(Part.Circle(App.Vector(1.5, 18.5, 0), App.Vector(0, 0, 1), 1.5), math.radians(90), math.radians(180)),  # 44
    Part.LineSegment(App.Vector(0, 18.5, 0), App.Vector(0, 13.33, 0)),  # 45
    Part.LineSegment(App.Vector(0, 13.33, 0), App.Vector(0.45, 13.33, 0)),  # 46
    Part.LineSegment(App.Vector(0.45, 13.33, 0), App.Vector(0.45, 13, 0)),  # 47
    Part.LineSegment(App.Vector(0.45, 13, 0), App.Vector(1.59, 13, 0)),  # 48
    Part.LineSegment(App.Vector(1.59, 13, 0), App.Vector(1.59, 16, 0)),  # 49
    Part.LineSegment(App.Vector(1.59, 16, 0), App.Vector(2.95, 16, 0)),  # 50
    Part.LineSegment(App.Vector(2.95, 16, 0), App.Vector(5.45, 13.33, 0)),  # 51
    Part.LineSegment(App.Vector(5.45, 13.33, 0), App.Vector(5.45, 10.83, 0)),  # 52
    Part.ArcOfCircle(Part.Circle(App.Vector(5.18, 10, 0), App.Vector(0, 0, 1), 0.87), math.radians(-72), math.radians(72)),  # 53
    Part.LineSegment(App.Vector(5.45, 9.17, 0), App.Vector(5.45, 6.55, 0)),  # 54
    Part.LineSegment(App.Vector(5.45, 6.55, 0), App.Vector(3, 4.09, 0)),  # 55
    Part.LineSegment(App.Vector(3, 4.09, 0), App.Vector(1.5, 4.09, 0)),  # 56
    Part.LineSegment(App.Vector(1.5, 4.09, 0), App.Vector(1.5, 7, 0)),  # 57
    Part.LineSegment(App.Vector(1.5, 7, 0), App.Vector(0.5, 7, 0)),  # 58
    Part.LineSegment(App.Vector(0.5, 7, 0), App.Vector(0.5, 6.55, 0)),  # 59
    Part.LineSegment(App.Vector(0.5, 6.55, 0), App.Vector(0, 6.55, 0)),  # 60
    Part.LineSegment(App.Vector(0, 6.55, 0), App.Vector(0, 1.5, 0)),  # 61
    Part.ArcOfCircle(Part.Circle(App.Vector(1.5, 1.5, 0), App.Vector(0, 0, 1), 1.5), math.radians(180), math.radians(270)),  # 62
    Part.LineSegment(App.Vector(1.5, 0, 0), App.Vector(6.67, 0, 0)),  # 63
    Part.LineSegment(App.Vector(6.67, 0, 0), App.Vector(6.67, 0.45, 0)),  # 64
    Part.LineSegment(App.Vector(6.67, 0.45, 0), App.Vector(7, 0.45, 0)),  # 65
    Part.LineSegment(App.Vector(7, 0.45, 0), App.Vector(7, 1.59, 0)),  # 66
    Part.LineSegment(App.Vector(7, 1.59, 0), App.Vector(4, 1.59, 0)),  # 67
    Part.LineSegment(App.Vector(4, 1.59, 0), App.Vector(4, 2.95, 0)),  # 68
    Part.LineSegment(App.Vector(4, 2.95, 0), App.Vector(6.67, 5.45, 0)),  # 69
    Part.LineSegment(App.Vector(6.67, 5.45, 0), App.Vector(9.17, 5.45, 0)),  # 70
    Part.ArcOfCircle(Part.Circle(App.Vector(10, 5.18, 0), App.Vector(0, 0, 1), 0.87), math.radians(18), math.radians(162)),  # 71
    Part.ArcOfCircle(Part.Circle(App.Vector(10, 10, 0), App.Vector(0, 0, 1), 2.75), math.radians(-117), math.radians(-63)),  # 72
    Part.LineSegment(App.Vector(8.74, 7.56, 0), App.Vector(8.19, 7.01, 0)),  # 73
    Part.LineSegment(App.Vector(8.19, 7.01, 0), App.Vector(7.01, 8.19, 0)),  # 74
    Part.LineSegment(App.Vector(7.01, 8.19, 0), App.Vector(7.56, 8.74, 0)),  # 75
    Part.ArcOfCircle(Part.Circle(App.Vector(10, 10, 0), App.Vector(0, 0, 1), 2.75), math.radians(153), math.radians(207)),  # 76
    Part.LineSegment(App.Vector(7.56, 11.26, 0), App.Vector(7.01, 11.81, 0)),  # 77
    Part.LineSegment(App.Vector(7.01, 11.81, 0), App.Vector(8.19, 12.99, 0)),  # 78
    Part.LineSegment(App.Vector(8.19, 12.99, 0), App.Vector(8.74, 12.44, 0)),  # 79
    Part.ArcOfCircle(Part.Circle(App.Vector(10, 10, 0), App.Vector(0, 0, 1), 2.75), math.radians(63), math.radians(117)),  # 80
    Part.LineSegment(App.Vector(11.26, 12.44, 0), App.Vector(11.81, 12.99, 0)),  # 81
    Part.LineSegment(App.Vector(11.81, 12.99, 0), App.Vector(12.99, 11.81, 0)),  # 82
    Part.LineSegment(App.Vector(12.99, 11.81, 0), App.Vector(12.44, 11.26, 0)),  # 83
    Part.ArcOfCircle(Part.Circle(App.Vector(10, 10, 0), App.Vector(0, 0, 1), 2.75), math.radians(-27), math.radians(27)),  # 84
    Part.LineSegment(App.Vector(12.44, 8.74, 0), App.Vector(12.99, 8.19, 0)),  # 85
    Part.LineSegment(App.Vector(12.99, 8.19, 0), App.Vector(11.81, 7.01, 0)),  # 86
    Part.LineSegment(App.Vector(11.81, 7.01, 0), App.Vector(11.26, 7.56, 0)),  # 87
], False)
sketch2.addConstraint([
    Sketcher.Constraint("Coincident", 0, 2, 1, 1),
    Sketcher.Constraint("Coincident", 1, 2, 2, 1),
    Sketcher.Constraint("Coincident", 2, 2, 3, 1),
    Sketcher.Constraint("Coincident", 3, 2, 4, 1),
    Sketcher.Constraint("Coincident", 4, 2, 5, 1),
    Sketcher.Constraint("Coincident", 5, 2, 6, 1),
    Sketcher.Constraint("Coincident", 6, 2, 7, 1),
    Sketcher.Constraint("Tangent", 7, 2, 8, 1),
    Sketcher.Constraint("Tangent", 8, 2, 9, 1),
    Sketcher.Constraint("Coincident", 9, 2, 10, 1),
    Sketcher.Constraint("Coincident", 10, 2, 11, 1),
    Sketcher.Constraint("Coincident", 11, 2, 12, 1),
    Sketcher.Constraint("Coincident", 12, 2, 13, 1),
    Sketcher.Constraint("Coincident", 13, 2, 14, 1),
    Sketcher.Constraint("Coincident", 14, 2, 15, 1),
    Sketcher.Constraint("Coincident", 15, 2, 16, 1),
    Sketcher.Constraint("Coincident", 16, 2, 17, 2),
    Sketcher.Constraint("Coincident", 17, 1, 18, 1),
    Sketcher.Constraint("Coincident", 18, 2, 19, 1),
    Sketcher.Constraint("Coincident", 19, 2, 20, 1),
    Sketcher.Constraint("Coincident", 20, 2, 21, 1),
    Sketcher.Constraint("Coincident", 21, 2, 22, 1),
    Sketcher.Constraint("Coincident", 22, 2, 23, 1),
    Sketcher.Constraint("Coincident", 23, 2, 24, 1),
    Sketcher.Constraint("Coincident", 24, 2, 25, 1),
    Sketcher.Constraint("Tangent", 25, 2, 26, 1),
    Sketcher.Constraint("Tangent", 26, 2, 27, 1),
    Sketcher.Constraint("Coincident", 27, 2, 28, 1),
    Sketcher.Constraint("Coincident", 28, 2, 29, 1),
    Sketcher.Constraint("Coincident", 29, 2, 30, 1),
    Sketcher.Constraint("Coincident", 30, 2, 31, 1),
    Sketcher.Constraint("Coincident", 31, 2, 32, 1),
    Sketcher.Constraint("Coincident", 32, 2, 33, 1),
    Sketcher.Constraint("Coincident", 33, 2, 34, 1),
    Sketcher.Constraint("Coincident", 34, 2, 35, 2),
    Sketcher.Constraint("Coincident", 35, 1, 36, 1),
    Sketcher.Constraint("Coincident", 36, 2, 37, 1),
    Sketcher.Constraint("Coincident", 37, 2, 38, 1),
    Sketcher.Constraint("Coincident", 38, 2, 39, 1),
    Sketcher.Constraint("Coincident", 39, 2, 40, 1),
    Sketcher.Constraint("Coincident", 40, 2, 41, 1),
    Sketcher.Constraint("Coincident", 41, 2, 42, 1),
    Sketcher.Constraint("Coincident", 42, 2, 43, 1),
    Sketcher.Constraint("Tangent", 43, 2, 44, 1),
    Sketcher.Constraint("Tangent", 44, 2, 45, 1),
    Sketcher.Constraint("Coincident", 45, 2, 46, 1),
    Sketcher.Constraint("Coincident", 46, 2, 47, 1),
    Sketcher.Constraint("Coincident", 47, 2, 48, 1),
    Sketcher.Constraint("Coincident", 48, 2, 49, 1),
    Sketcher.Constraint("Coincident", 49, 2, 50, 1),
    Sketcher.Constraint("Coincident", 50, 2, 51, 1),
    Sketcher.Constraint("Coincident", 51, 2, 52, 1),
    Sketcher.Constraint("Coincident", 52, 2, 53, 2),
    Sketcher.Constraint("Coincident", 53, 1, 54, 1),
    Sketcher.Constraint("Coincident", 54, 2, 55, 1),
    Sketcher.Constraint("Coincident", 55, 2, 56, 1),
    Sketcher.Constraint("Coincident", 56, 2, 57, 1),
    Sketcher.Constraint("Coincident", 57, 2, 58, 1),
    Sketcher.Constraint("Coincident", 58, 2, 59, 1),
    Sketcher.Constraint("Coincident", 59, 2, 60, 1),
    Sketcher.Constraint("Coincident", 60, 2, 61, 1),
    Sketcher.Constraint("Tangent", 61, 2, 62, 1),
    Sketcher.Constraint("Tangent", 62, 2, 63, 1),
    Sketcher.Constraint("Coincident", 63, 2, 64, 1),
    Sketcher.Constraint("Coincident", 64, 2, 65, 1),
    Sketcher.Constraint("Coincident", 65, 2, 66, 1),
    Sketcher.Constraint("Coincident", 66, 2, 67, 1),
    Sketcher.Constraint("Coincident", 67, 2, 68, 1),
    Sketcher.Constraint("Coincident", 68, 2, 69, 1),
    Sketcher.Constraint("Coincident", 69, 2, 70, 1),
    Sketcher.Constraint("Coincident", 70, 2, 71, 2),
    Sketcher.Constraint("Coincident", 71, 1, 0, 1),
    Sketcher.Constraint("Coincident", 72, 1, 73, 1),
    Sketcher.Constraint("Coincident", 73, 2, 74, 1),
    Sketcher.Constraint("Coincident", 74, 2, 75, 1),
    Sketcher.Constraint("Coincident", 75, 2, 76, 2),
    Sketcher.Constraint("Coincident", 76, 1, 77, 1),
    Sketcher.Constraint("Coincident", 77, 2, 78, 1),
    Sketcher.Constraint("Coincident", 78, 2, 79, 1),
    Sketcher.Constraint("Coincident", 79, 2, 80, 2),
    Sketcher.Constraint("Coincident", 80, 1, 81, 1),
    Sketcher.Constraint("Coincident", 81, 2, 82, 1),
    Sketcher.Constraint("Coincident", 82, 2, 83, 1),
    Sketcher.Constraint("Coincident", 83, 2, 84, 2),
    Sketcher.Constraint("Coincident", 84, 1, 85, 1),
    Sketcher.Constraint("Coincident", 85, 2, 86, 1),
    Sketcher.Constraint("Coincident", 86, 2, 87, 1),
    Sketcher.Constraint("Coincident", 87, 2, 72, 2),
    Sketcher.Constraint("Horizontal", 0),
    Sketcher.Constraint("Vertical", 2),
    Sketcher.Constraint("Horizontal", 3),
    Sketcher.Constraint("Vertical", 4),
    Sketcher.Constraint("Horizontal", 5),
    Sketcher.Constraint("Vertical", 6),
    Sketcher.Constraint("Horizontal", 7),
    Sketcher.Constraint("Vertical", 9),
    Sketcher.Constraint("Horizontal", 10),
    Sketcher.Constraint("Vertical", 11),
    Sketcher.Constraint("Horizontal", 12),
    Sketcher.Constraint("Vertical", 13),
    Sketcher.Constraint("Horizontal", 14),
    Sketcher.Constraint("Vertical", 16),
    Sketcher.Constraint("Vertical", 18),
    Sketcher.Constraint("Horizontal", 20),
    Sketcher.Constraint("Vertical", 21),
    Sketcher.Constraint("Horizontal", 22),
    Sketcher.Constraint("Vertical", 23),
    Sketcher.Constraint("Horizontal", 24),
    Sketcher.Constraint("Vertical", 25),
    Sketcher.Constraint("Horizontal", 27),
    Sketcher.Constraint("Vertical", 28),
    Sketcher.Constraint("Horizontal", 29),
    Sketcher.Constraint("Vertical", 30),
    Sketcher.Constraint("Horizontal", 31),
    Sketcher.Constraint("Vertical", 32),
    Sketcher.Constraint("Horizontal", 34),
    Sketcher.Constraint("Horizontal", 36),
    Sketcher.Constraint("Vertical", 38),
    Sketcher.Constraint("Horizontal", 39),
    Sketcher.Constraint("Vertical", 40),
    Sketcher.Constraint("Horizontal", 41),
    Sketcher.Constraint("Vertical", 42),
    Sketcher.Constraint("Horizontal", 43),
    Sketcher.Constraint("Vertical", 45),
    Sketcher.Constraint("Horizontal", 46),
    Sketcher.Constraint("Vertical", 47),
    Sketcher.Constraint("Horizontal", 48),
    Sketcher.Constraint("Vertical", 49),
    Sketcher.Constraint("Horizontal", 50),
    Sketcher.Constraint("Vertical", 52),
    Sketcher.Constraint("Vertical", 54),
    Sketcher.Constraint("Horizontal", 56),
    Sketcher.Constraint("Vertical", 57),
    Sketcher.Constraint("Horizontal", 58),
    Sketcher.Constraint("Vertical", 59),
    Sketcher.Constraint("Horizontal", 60),
    Sketcher.Constraint("Vertical", 61),
    Sketcher.Constraint("Horizontal", 63),
    Sketcher.Constraint("Vertical", 64),
    Sketcher.Constraint("Horizontal", 65),
    Sketcher.Constraint("Vertical", 66),
    Sketcher.Constraint("Horizontal", 67),
    Sketcher.Constraint("Vertical", 68),
    Sketcher.Constraint("Horizontal", 70),
    Sketcher.Constraint("Coincident", 76, 3, 72, 3),
    Sketcher.Constraint("Coincident", 80, 3, 72, 3),
    Sketcher.Constraint("Coincident", 84, 3, 72, 3),
    Sketcher.Constraint("Equal", 8, 26),
    Sketcher.Constraint("Equal", 17, 35),
    Sketcher.Constraint("Equal", 26, 44),
    Sketcher.Constraint("Equal", 35, 53),
    Sketcher.Constraint("Equal", 44, 62),
    Sketcher.Constraint("Equal", 53, 71),
    Sketcher.Constraint("Equal", 72, 76),
    Sketcher.Constraint("Equal", 76, 80),
    Sketcher.Constraint("Equal", 80, 84),
    Sketcher.Constraint("PointOnObject", 6, 2, -1),
    Sketcher.Constraint("PointOnObject", 44, 2, -2),
    Sketcher.Constraint("PointOnObject", 60, 2, -2),
    Sketcher.Constraint("PointOnObject", 62, 2, -1),
    Sketcher.Constraint("Perpendicular", 1, 19),
    Sketcher.Constraint("Perpendicular", 15, 33),
    Sketcher.Constraint("Perpendicular", 19, 37),
    Sketcher.Constraint("Perpendicular", 33, 51),
    Sketcher.Constraint("Perpendicular", 37, 55),
    Sketcher.Constraint("Perpendicular", 51, 69),
    Sketcher.Constraint("Parallel", 55, 73),
    Sketcher.Constraint("Perpendicular", 73, 74),
    Sketcher.Constraint("Perpendicular", 74, 75),
    Sketcher.Constraint("Perpendicular", 75, 77),
    Sketcher.Constraint("Perpendicular", 77, 78),
    Sketcher.Constraint("Perpendicular", 78, 79),
    Sketcher.Constraint("Perpendicular", 79, 81),
    Sketcher.Constraint("Perpendicular", 81, 82),
    Sketcher.Constraint("Perpendicular", 82, 83),
    Sketcher.Constraint("Perpendicular", 83, 85),
    Sketcher.Constraint("Perpendicular", 85, 86),
    Sketcher.Constraint("Perpendicular", 86, 87),
    Sketcher.Constraint("Horizontal", 26, 3, 44, 3),
    Sketcher.Constraint("Horizontal", 17, 3, 53, 3),
    Sketcher.Constraint("Horizontal", 53, 3, 72, 3),
    Sketcher.Constraint("Horizontal", 10, 2, 15, 2),
    Sketcher.Constraint("Horizontal", 18, 2, 23, 2),
    Sketcher.Constraint("Horizontal", 34, 2, 35, 1),
    Sketcher.Constraint("Horizontal", 22, 2, 47, 2),
    Sketcher.Constraint("Horizontal", 46, 2, 51, 2),
    Sketcher.Constraint("Horizontal", 17, 1, 52, 2),
    Sketcher.Constraint("Horizontal", 16, 2, 53, 1),
    Sketcher.Constraint("Horizontal", 12, 2, 57, 2),
    Sketcher.Constraint("Horizontal", 54, 2, 59, 2),
    Sketcher.Constraint("Horizontal", 0, 2, 69, 2),
    Sketcher.Constraint("Horizontal", 79, 2, 80, 1),
    Sketcher.Constraint("Horizontal", 78, 2, 81, 2),
    Sketcher.Constraint("Horizontal", 77, 2, 82, 2),
    Sketcher.Constraint("Horizontal", 76, 1, 83, 2),
    Sketcher.Constraint("Horizontal", 75, 2, 84, 1),
    Sketcher.Constraint("Horizontal", 74, 2, 85, 2),
    Sketcher.Constraint("Horizontal", 73, 2, 86, 2),
    Sketcher.Constraint("Vertical", 8, 3, 26, 3),
    Sketcher.Constraint("Vertical", 35, 3, 71, 3),
    Sketcher.Constraint("Vertical", 71, 3, 72, 3),
    Sketcher.Constraint("Vertical", 0, 2, 5, 2),
    Sketcher.Constraint("Vertical", 16, 2, 17, 1),
    Sketcher.Constraint("Vertical", 4, 2, 29, 2),
    Sketcher.Constraint("Vertical", 28, 2, 33, 2),
    Sketcher.Constraint("Vertical", 36, 2, 41, 2),
    Sketcher.Constraint("Vertical", 40, 2, 65, 2),
    Sketcher.Constraint("Vertical", 64, 2, 69, 2),
    Sketcher.Constraint("Vertical", 35, 1, 70, 2),
    Sketcher.Constraint("Vertical", 75, 2, 76, 1),
    Sketcher.Constraint("Vertical", 74, 2, 77, 2),
    Sketcher.Constraint("Vertical", 73, 2, 78, 2),
    Sketcher.Constraint("Equal", 5, 10),
    Sketcher.Constraint("Equal", 0, 36),
    Sketcher.Constraint("Equal", 3, 39),
    Sketcher.Constraint("Equal", 10, 41),
    Sketcher.Constraint("Equal", 7, 43),
    Sketcher.Constraint("Equal", 41, 46),
    Sketcher.Constraint("Equal", 12, 48),
    Sketcher.Constraint("Equal", 14, 50),
    Sketcher.Constraint("Equal", 20, 56),
    Sketcher.Constraint("Equal", 22, 58),
    Sketcher.Constraint("Equal", 24, 60),
    Sketcher.Constraint("Equal", 27, 63),
    Sketcher.Constraint("Equal", 31, 67),
    Sketcher.Constraint("Equal", 56, 2),
    Sketcher.Constraint("Equal", 58, 4),
    Sketcher.Constraint("Equal", 60, 6),
    Sketcher.Constraint("Equal", 63, 9),
    Sketcher.Constraint("Equal", 65, 11),
    Sketcher.Constraint("Equal", 67, 13),
    Sketcher.Constraint("Equal", 70, 16),
    Sketcher.Constraint("Equal", 36, 18),
    Sketcher.Constraint("Equal", 39, 21),
    Sketcher.Constraint("Equal", 46, 23),
    Sketcher.Constraint("Equal", 43, 25),
    Sketcher.Constraint("Equal", 23, 28),
    Sketcher.Constraint("Equal", 48, 30),
    Sketcher.Constraint("Equal", 50, 32),
    Sketcher.Constraint("Equal", 2, 38),
    Sketcher.Constraint("Equal", 4, 40),
    Sketcher.Constraint("Equal", 9, 45),
    Sketcher.Constraint("Equal", 13, 49),
    Sketcher.Constraint("Equal", 18, 54),
    Sketcher.Constraint("Equal", 59, 64),
    Sketcher.Constraint("Equal", 30, 66),
    Sketcher.Constraint("Equal", 73, 75),
    Sketcher.Constraint("DistanceX", 22, 1, 22, 2, Q("1 mm")),
    Sketcher.Constraint("DistanceX", 31, 1, 31, 2, Q("3 mm")),
    Sketcher.Constraint("Radius", 72, Q("2.75 mm")),
    Sketcher.Constraint("DistanceX", 20, 1, 20, 2, Q("1.5 mm")),
    Sketcher.Constraint("DistanceX", 24, 1, 24, 2, Q("0.5 mm")),
    Sketcher.Constraint("DistanceY", -1, 1, 17, 3, Q("10 mm")),
    Sketcher.Constraint("DistanceX", -1, 1, 35, 3, Q("10 mm")),
    Sketcher.Constraint("DistanceX", -1, 1, 3, 2, Q("13 mm")),
    Sketcher.Constraint("Radius", 8, Q("1.5043 mm")),
    Sketcher.Constraint("Radius", 17, Q("0.8732 mm")),
    Sketcher.Constraint("DistanceX", 3, 2, 3, 1, Q("2.909 mm")),
    Sketcher.Constraint("DistanceX", 34, 2, 34, 1, Q("2.503 mm")),
    Sketcher.Constraint("DistanceX", 0, 1, 0, 2, Q("2.6243 mm")),
    Sketcher.Constraint("DistanceX", 5, 1, 5, 2, Q("0.4545 mm")),
    Sketcher.Constraint("DistanceX", 12, 2, 12, 1, Q("1.1364 mm")),
    Sketcher.Constraint("DistanceX", 14, 2, 14, 1, Q("1.3636 mm")),
    Sketcher.Constraint("Distance", 73, Q("0.7761 mm")),
    Sketcher.Constraint("Distance", 74, Q("1.6715 mm")),
])
pocket1 = body.newObject("PartDesign::Pocket", "Pocket")
pocket1.Profile = sketch2
pocket1.Length = 35.4

doc.recompute()
